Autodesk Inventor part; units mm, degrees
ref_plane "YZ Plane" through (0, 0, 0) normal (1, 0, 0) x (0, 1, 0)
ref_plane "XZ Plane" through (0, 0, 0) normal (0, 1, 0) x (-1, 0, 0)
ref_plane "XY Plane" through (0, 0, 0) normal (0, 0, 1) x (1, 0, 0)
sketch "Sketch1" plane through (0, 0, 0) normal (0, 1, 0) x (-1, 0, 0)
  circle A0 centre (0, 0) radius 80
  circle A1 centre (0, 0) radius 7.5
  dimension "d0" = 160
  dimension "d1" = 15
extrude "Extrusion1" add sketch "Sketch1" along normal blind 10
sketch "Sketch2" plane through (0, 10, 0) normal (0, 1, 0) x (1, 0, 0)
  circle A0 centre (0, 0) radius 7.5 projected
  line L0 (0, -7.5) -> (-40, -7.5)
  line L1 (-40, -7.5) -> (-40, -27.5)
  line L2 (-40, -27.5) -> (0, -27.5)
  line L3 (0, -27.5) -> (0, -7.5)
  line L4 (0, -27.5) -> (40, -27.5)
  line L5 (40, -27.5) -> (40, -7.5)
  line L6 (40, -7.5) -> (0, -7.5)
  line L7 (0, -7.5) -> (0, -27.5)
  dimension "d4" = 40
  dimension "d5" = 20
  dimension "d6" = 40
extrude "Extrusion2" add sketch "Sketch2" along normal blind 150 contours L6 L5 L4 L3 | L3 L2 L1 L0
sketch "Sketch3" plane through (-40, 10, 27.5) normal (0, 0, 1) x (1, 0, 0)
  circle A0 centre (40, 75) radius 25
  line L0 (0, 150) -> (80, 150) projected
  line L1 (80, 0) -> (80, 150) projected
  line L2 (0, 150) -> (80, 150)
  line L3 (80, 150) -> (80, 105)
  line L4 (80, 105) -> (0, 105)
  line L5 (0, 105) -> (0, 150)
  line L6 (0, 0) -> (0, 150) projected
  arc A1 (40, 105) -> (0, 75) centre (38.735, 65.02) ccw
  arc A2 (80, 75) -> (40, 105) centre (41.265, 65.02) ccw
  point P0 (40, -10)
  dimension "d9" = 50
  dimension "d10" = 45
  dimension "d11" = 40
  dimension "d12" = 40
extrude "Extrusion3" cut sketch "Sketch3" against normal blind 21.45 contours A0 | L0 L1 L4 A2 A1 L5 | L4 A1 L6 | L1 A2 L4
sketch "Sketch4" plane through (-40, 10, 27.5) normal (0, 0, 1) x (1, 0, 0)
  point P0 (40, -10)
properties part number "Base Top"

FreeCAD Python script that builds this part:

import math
import FreeCAD as App
import Part
import Sketcher

V = App.Vector

doc = App.newDocument("Part")
body = doc.addObject("PartDesign::Body", "Body")

# Sketch on XZ plane
sketch1 = doc.addObject("Sketcher::SketchObject", "Sketch")
body.addObject(sketch1)
sketch1.AttachmentSupport = (doc.XZ_Plane, [""])
sketch1.MapMode = "FlatFace"
sketch1.addGeometry(Part.Circle(V(0, 0, 0), V(0, 0, 1), 80), False)
sketch1.addGeometry(Part.Circle(V(0, 0, 0), V(0, 0, 1), 8), False)
sketch1.addConstraint(Sketcher.Constraint("Coincident", 0, 3, -1, 1))
sketch1.addConstraint(Sketcher.Constraint("Coincident", 1, 3, -1, 1))
sketch1.addConstraint(Sketcher.Constraint("Diameter", 0, 160.0))
sketch1.addConstraint(Sketcher.Constraint("Diameter", 1, 15.0))
pad1 = doc.addObject("PartDesign::Pad", "Pad")
body.addObject(pad1)
pad1.Profile = sketch1
pad1.Length = 10
pad1.Reversed = True

# Sketch on XZ plane
sketch2 = doc.addObject("Sketcher::SketchObject", "Sketch001")
body.addObject(sketch2)
sketch2.AttachmentSupport = (doc.XZ_Plane, [""])
sketch2.MapMode = "FlatFace"
sketch2.AttachmentOffset = App.Placement(V(0, 0, -10), App.Rotation())
sketch2.addGeometry(Part.LineSegment(V(40, 8, 0), V(-40, 8, 0)), False)
sketch2.addGeometry(Part.LineSegment(V(-40, 8, 0), V(-40, 28, 0)), False)
sketch2.addGeometry(Part.LineSegment(V(-40, 28, 0), V(40, 28, 0)), False)
sketch2.addGeometry(Part.LineSegment(V(40, 28, 0), V(40, 8, 0)), False)
sketch2.addConstraint(Sketcher.Constraint("Coincident", 0, 2, 1, 1))
sketch2.addConstraint(Sketcher.Constraint("Coincident", 1, 2, 2, 1))
sketch2.addConstraint(Sketcher.Constraint("Coincident", 2, 2, 3, 1))
sketch2.addConstraint(Sketcher.Constraint("Coincident", 3, 2, 0, 1))
sketch2.addConstraint(Sketcher.Constraint("Horizontal", 0))
sketch2.addConstraint(Sketcher.Constraint("Vertical", 1))
sketch2.addConstraint(Sketcher.Constraint("Horizontal", 2))
sketch2.addConstraint(Sketcher.Constraint("Vertical", 3))
sketch2.addConstraint(Sketcher.Constraint("DistanceY", 1, 1, 1, 2, 20.0))
sketch2.addConstraint(Sketcher.Constraint("DistanceX", 0, 2, -1, 1, 40.0))
sketch2.addConstraint(Sketcher.Constraint("DistanceX", -1, 1, 2, 2, 40.0))
sketch2.addConstraint(Sketcher.Constraint("DistanceY", -1, 1, 0, 2, 7.5))
pad2 = doc.addObject("PartDesign::Pad", "Pad001")
body.addObject(pad2)
pad2.Profile = sketch2
pad2.Length = 150
pad2.Reversed = True

# Sketch on XY plane
sketch3 = doc.addObject("Sketcher::SketchObject", "Sketch002")
body.addObject(sketch3)
sketch3.AttachmentSupport = (doc.XY_Plane, [""])
sketch3.MapMode = "FlatFace"
sketch3.AttachmentOffset = App.Placement(V(0, 0, 27.5), App.Rotation())
sketch3.addGeometry(Part.Circle(V(0, 85, 0), V(0, 0, 1), 25), False)
sketch3.addGeometry(Part.LineSegment(V(40, 160, 0), V(-40, 160, 0)), False)
sketch3.addGeometry(Part.LineSegment(V(-40, 160, 0), V(-40, 85, 0)), False)
sketch3.addGeometry(Part.ArcOfCircle(Part.Circle(V(-1, 75, 0), V(0, 0, 1), 40), math.radians(88), math.radians(166)), False)
sketch3.addGeometry(Part.ArcOfCircle(Part.Circle(V(1, 75, 0), V(0, 0, 1), 40), math.radians(14), math.radians(92)), False)
sketch3.addGeometry(Part.LineSegment(V(40, 85, 0), V(40, 160, 0)), False)
sketch3.addConstraint(Sketcher.Constraint("Coincident", 1, 2, 2, 1))
sketch3.addConstraint(Sketcher.Constraint("Coincident", 2, 2, 3, 2))
sketch3.addConstraint(Sketcher.Constraint("Coincident", 3, 1, 4, 2))
sketch3.addConstraint(Sketcher.Constraint("Coincident", 4, 1, 5, 1))
sketch3.addConstraint(Sketcher.Constraint("Coincident", 5, 2, 1, 1))
sketch3.addConstraint(Sketcher.Constraint("Horizontal", 1))
sketch3.addConstraint(Sketcher.Constraint("Vertical", 2))
sketch3.addConstraint(Sketcher.Constraint("Vertical", 5))
sketch3.addConstraint(Sketcher.Constraint("Equal", 3, 4))
sketch3.addConstraint(Sketcher.Constraint("Symmetric", 3, 3, 4, 3, -2))
sketch3.addConstraint(Sketcher.Constraint("PointOnObject", 0, 3, -2))
sketch3.addConstraint(Sketcher.Constraint("Horizontal", 0, 3, 2, 2))
sketch3.addConstraint(Sketcher.Constraint("Horizontal", 2, 2, 4, 1))
sketch3.addConstraint(Sketcher.Constraint("Diameter", 0, 50.0))
sketch3.addConstraint(Sketcher.Constraint("Radius", 3, 40.0))
sketch3.addConstraint(Sketcher.Constraint("DistanceX", 1, 2, -1, 1, 40.0))
sketch3.addConstraint(Sketcher.Constraint("DistanceY", 3, 1, 1, 2, 45.0))
sketch3.addConstraint(Sketcher.Constraint("DistanceY", 2, 2, 2, 1, 75.0))
sketch3.addConstraint(Sketcher.Constraint("DistanceY", -1, 1, 0, 3, 85.0))
pocket1 = doc.addObject("PartDesign::Pocket", "Pocket")
body.addObject(pocket1)
pocket1.Profile = sketch3
pocket1.Length = 21.45

doc.recompute()
